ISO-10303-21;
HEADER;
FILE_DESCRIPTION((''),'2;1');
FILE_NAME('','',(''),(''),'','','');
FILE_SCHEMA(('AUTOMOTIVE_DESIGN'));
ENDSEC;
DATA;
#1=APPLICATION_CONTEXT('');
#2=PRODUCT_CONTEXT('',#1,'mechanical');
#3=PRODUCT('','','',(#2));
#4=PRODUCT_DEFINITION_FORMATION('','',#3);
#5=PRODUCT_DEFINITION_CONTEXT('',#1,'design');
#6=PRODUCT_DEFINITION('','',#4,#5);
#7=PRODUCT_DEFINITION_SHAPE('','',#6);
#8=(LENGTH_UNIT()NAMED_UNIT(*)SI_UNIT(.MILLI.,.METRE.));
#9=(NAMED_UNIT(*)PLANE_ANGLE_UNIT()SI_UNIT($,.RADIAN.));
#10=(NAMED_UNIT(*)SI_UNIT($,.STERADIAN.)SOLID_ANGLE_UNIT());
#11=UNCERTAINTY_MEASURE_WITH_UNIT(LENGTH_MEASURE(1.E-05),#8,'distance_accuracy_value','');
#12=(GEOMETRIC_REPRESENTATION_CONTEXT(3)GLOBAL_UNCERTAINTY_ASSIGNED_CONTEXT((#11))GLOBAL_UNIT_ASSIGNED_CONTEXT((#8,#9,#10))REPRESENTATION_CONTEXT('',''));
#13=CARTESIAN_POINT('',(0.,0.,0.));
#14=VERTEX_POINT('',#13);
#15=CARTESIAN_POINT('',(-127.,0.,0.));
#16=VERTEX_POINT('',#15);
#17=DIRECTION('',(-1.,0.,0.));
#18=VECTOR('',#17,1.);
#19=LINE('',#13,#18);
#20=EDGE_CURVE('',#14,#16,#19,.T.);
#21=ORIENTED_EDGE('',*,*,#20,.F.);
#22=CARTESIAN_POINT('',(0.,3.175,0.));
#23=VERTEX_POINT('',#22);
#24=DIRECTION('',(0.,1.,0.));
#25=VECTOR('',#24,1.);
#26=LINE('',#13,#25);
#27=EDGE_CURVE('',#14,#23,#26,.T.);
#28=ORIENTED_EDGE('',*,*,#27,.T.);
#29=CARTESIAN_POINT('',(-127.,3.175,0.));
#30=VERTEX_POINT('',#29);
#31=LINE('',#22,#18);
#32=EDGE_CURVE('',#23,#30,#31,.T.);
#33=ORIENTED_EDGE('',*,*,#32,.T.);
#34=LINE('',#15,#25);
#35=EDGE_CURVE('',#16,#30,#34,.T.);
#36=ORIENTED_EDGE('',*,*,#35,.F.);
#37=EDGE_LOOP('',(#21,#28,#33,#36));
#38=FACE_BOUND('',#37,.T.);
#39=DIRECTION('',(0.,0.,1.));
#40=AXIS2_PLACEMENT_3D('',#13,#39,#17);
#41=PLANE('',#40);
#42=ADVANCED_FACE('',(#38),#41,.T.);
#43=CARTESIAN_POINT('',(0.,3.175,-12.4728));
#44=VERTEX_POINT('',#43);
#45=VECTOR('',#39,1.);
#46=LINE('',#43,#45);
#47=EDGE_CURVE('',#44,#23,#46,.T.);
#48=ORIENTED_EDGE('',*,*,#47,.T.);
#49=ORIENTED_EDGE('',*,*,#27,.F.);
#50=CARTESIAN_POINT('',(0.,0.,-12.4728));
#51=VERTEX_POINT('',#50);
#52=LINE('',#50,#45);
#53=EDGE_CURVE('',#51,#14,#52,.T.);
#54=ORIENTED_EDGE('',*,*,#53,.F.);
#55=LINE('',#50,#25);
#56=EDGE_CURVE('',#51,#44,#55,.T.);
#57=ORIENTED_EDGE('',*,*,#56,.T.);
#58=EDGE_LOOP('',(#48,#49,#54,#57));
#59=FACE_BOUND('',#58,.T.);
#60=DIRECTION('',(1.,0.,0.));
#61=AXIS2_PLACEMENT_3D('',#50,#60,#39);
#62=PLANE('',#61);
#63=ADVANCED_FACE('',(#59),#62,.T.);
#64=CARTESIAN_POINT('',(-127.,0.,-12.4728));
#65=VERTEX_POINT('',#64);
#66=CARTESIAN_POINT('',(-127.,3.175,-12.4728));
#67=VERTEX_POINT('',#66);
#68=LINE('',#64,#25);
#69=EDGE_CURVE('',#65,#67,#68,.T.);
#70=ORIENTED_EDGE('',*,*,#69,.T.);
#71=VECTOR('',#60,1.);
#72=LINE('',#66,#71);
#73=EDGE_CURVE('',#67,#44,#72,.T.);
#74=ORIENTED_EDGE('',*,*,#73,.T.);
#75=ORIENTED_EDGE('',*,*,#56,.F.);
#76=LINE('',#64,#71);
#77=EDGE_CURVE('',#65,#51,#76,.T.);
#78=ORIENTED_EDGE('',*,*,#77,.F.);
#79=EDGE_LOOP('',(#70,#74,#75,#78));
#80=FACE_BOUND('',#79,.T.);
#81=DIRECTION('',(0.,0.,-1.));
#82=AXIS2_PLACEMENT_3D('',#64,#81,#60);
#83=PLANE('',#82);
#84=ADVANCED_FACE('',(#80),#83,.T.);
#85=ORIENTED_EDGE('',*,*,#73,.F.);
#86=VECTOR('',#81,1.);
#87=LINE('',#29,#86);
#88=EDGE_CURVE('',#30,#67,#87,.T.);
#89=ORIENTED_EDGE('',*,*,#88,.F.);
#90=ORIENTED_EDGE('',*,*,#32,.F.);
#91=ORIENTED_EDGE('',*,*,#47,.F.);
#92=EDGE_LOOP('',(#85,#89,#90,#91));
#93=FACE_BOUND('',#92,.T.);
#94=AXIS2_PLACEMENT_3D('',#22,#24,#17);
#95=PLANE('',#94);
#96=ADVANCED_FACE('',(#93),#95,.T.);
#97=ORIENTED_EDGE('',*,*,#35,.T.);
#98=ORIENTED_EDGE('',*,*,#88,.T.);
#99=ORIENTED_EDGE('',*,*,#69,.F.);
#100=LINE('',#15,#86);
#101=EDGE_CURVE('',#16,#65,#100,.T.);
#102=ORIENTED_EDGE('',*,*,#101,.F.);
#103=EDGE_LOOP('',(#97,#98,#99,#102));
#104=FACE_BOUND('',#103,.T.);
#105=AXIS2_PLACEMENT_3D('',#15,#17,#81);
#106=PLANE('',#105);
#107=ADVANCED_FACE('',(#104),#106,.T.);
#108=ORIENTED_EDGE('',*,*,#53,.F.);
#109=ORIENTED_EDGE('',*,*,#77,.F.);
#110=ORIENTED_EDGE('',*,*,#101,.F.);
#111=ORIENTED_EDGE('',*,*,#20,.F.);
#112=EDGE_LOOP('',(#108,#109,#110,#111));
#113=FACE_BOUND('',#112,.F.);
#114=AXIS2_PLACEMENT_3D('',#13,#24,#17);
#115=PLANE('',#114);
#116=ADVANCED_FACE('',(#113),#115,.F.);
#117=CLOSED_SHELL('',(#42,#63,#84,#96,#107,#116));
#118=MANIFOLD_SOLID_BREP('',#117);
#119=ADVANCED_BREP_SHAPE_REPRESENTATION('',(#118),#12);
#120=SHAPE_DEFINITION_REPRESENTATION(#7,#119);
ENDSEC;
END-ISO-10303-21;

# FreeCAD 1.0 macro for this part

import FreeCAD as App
import Part
import Sketcher

V = App.Vector
Q = App.Units.Quantity

doc = App.newDocument("Part")
body = doc.addObject("PartDesign::Body", "Body")

# Sketch on XZ plane
sketch1 = doc.addObject("Sketcher::SketchObject", "Sketch")
body.addObject(sketch1)
sketch1.AttachmentSupport = (doc.XZ_Plane, [""])
sketch1.MapMode = "FlatFace"
sketch1.addGeometry(Part.LineSegment(V(-127, 0, 0), V(0, 0, 0)), False)
sketch1.addGeometry(Part.LineSegment(V(0, 0, 0), V(0, -12, 0)), False)
sketch1.addGeometry(Part.LineSegment(V(0, -12, 0), V(-127, -12, 0)), False)
sketch1.addGeometry(Part.LineSegment(V(-127, -12, 0), V(-127, 0, 0)), False)
sketch1.addConstraint(Sketcher.Constraint("Coincident", 0, 2, 1, 1))
sketch1.addConstraint(Sketcher.Constraint("Coincident", 1, 2, 2, 1))
sketch1.addConstraint(Sketcher.Constraint("Coincident", 2, 2, 3, 1))
sketch1.addConstraint(Sketcher.Constraint("Coincident", 3, 2, 0, 1))
sketch1.addConstraint(Sketcher.Constraint("Horizontal", 0))
sketch1.addConstraint(Sketcher.Constraint("Vertical", 1))
sketch1.addConstraint(Sketcher.Constraint("Horizontal", 2))
sketch1.addConstraint(Sketcher.Constraint("Vertical", 3))
sketch1.addConstraint(Sketcher.Constraint("Coincident", 0, 2, -1, 1))
sketch1.addConstraint(Sketcher.Constraint("DistanceX", 0, 1, 0, 2, Q("5 in")))
sketch1.addConstraint(Sketcher.Constraint("DistanceY", 1, 2, 1, 1, 12.4728))
pad1 = doc.addObject("PartDesign::Pad", "Pad")
body.addObject(pad1)
pad1.Profile = sketch1
pad1.Length = Q("0.125 in")
pad1.Reversed = True

doc.recompute()
